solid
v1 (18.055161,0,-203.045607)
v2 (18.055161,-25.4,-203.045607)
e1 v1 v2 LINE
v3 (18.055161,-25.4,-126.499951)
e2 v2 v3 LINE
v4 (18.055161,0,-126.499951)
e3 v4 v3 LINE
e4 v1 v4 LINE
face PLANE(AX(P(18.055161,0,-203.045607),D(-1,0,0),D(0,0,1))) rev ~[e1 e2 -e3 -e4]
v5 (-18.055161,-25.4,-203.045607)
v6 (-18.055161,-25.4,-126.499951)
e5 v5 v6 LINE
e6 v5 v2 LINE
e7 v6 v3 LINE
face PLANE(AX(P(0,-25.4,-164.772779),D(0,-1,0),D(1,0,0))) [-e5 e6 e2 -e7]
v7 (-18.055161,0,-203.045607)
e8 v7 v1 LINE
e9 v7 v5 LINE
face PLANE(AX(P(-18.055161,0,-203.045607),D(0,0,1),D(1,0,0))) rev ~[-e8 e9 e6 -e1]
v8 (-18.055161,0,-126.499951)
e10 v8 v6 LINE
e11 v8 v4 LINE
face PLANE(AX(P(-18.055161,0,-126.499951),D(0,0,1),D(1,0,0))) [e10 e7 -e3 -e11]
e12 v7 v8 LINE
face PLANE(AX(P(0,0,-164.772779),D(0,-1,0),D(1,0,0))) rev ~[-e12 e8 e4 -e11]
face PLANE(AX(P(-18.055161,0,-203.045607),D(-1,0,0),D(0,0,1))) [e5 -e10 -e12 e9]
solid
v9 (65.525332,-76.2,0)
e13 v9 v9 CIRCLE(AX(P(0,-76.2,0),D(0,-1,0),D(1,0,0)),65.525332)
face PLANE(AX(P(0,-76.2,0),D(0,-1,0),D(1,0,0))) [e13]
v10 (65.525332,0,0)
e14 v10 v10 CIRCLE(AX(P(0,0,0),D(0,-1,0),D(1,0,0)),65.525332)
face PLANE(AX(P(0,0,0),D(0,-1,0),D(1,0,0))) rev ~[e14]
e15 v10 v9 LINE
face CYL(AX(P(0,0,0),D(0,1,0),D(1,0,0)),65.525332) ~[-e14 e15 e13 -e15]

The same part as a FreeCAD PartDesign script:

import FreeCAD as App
import Part
import Sketcher

V = App.Vector
Q = App.Units.Quantity

doc = App.newDocument("Part")
params = doc.addObject("Spreadsheet::Sheet", "Params")
for row, (alias, value) in enumerate([
    ("pad1_length", "3 in"),
    ("pad2_length", "1 in"),
], start=1):
    params.set(f"A{row}", alias)
    params.set(f"B{row}", "=" + value)
    params.setAlias(f"B{row}", alias)

body = doc.addObject("PartDesign::Body", "Body")

# Sketch on XZ plane
sketch1 = body.newObject("Sketcher::SketchObject", "Sketch")
sketch1.AttachmentSupport = (doc.getObject("XZ_Plane"), [""])
sketch1.MapMode = "FlatFace"
sketch1.addGeometry(Part.Circle(V(0, 0, 0), V(0, 0, 1), 65.525332), False)
sketch1.addConstraint([
    Sketcher.Constraint("Coincident", 0, 3, -1, 1),
    Sketcher.Constraint("Diameter", 0, Q("131.050664 mm")),
])
pad1 = body.newObject("PartDesign::Pad", "Pad")
pad1.Profile = sketch1
pad1.setExpression("Length", "Params.pad1_length")
body2 = doc.addObject("PartDesign::Body", "Body001")

# Sketch on XZ plane
sketch2 = body2.newObject("Sketcher::SketchObject", "Sketch001")
sketch2.AttachmentSupport = (doc.getObject("XZ_Plane001"), [""])
sketch2.MapMode = "FlatFace"
sketch2.addGeometry([
    Part.LineSegment(V(-18.055161, -126.499951, 0), V(-18.055161, -203.045607, 0)),
    Part.LineSegment(V(-18.055161, -203.045607, 0), V(18.055161, -203.045607, 0)),
    Part.LineSegment(V(18.055161, -203.045607, 0), V(18.055161, -126.499951, 0)),
    Part.LineSegment(V(18.055161, -126.499951, 0), V(-18.055161, -126.499951, 0)),
], False)
sketch2.addConstraint([
    Sketcher.Constraint("Coincident", 0, 2, 1, 1),
    Sketcher.Constraint("Coincident", 1, 2, 2, 1),
    Sketcher.Constraint("Coincident", 2, 2, 3, 1),
    Sketcher.Constraint("Coincident", 3, 2, 0, 1),
    Sketcher.Constraint("Vertical", 0),
    Sketcher.Constraint("Horizontal", 1),
    Sketcher.Constraint("Vertical", 2),
    Sketcher.Constraint("Horizontal", 3),
    Sketcher.Constraint("DistanceX", 1, 1, 1, 2, Q("36.110322 mm")),
    Sketcher.Constraint("DistanceY", 0, 2, 0, 1, Q("76.545656 mm")),
    Sketcher.Constraint("DistanceX", 0, 2, -1, 1, Q("18.055161 mm")),
    Sketcher.Constraint("DistanceY", 2, 2, -1, 1, Q("126.499951 mm")),
])
pad2 = body2.newObject("PartDesign::Pad", "Pad001")
pad2.Profile = sketch2
pad2.setExpression("Length", "Params.pad2_length")

doc.recompute()
